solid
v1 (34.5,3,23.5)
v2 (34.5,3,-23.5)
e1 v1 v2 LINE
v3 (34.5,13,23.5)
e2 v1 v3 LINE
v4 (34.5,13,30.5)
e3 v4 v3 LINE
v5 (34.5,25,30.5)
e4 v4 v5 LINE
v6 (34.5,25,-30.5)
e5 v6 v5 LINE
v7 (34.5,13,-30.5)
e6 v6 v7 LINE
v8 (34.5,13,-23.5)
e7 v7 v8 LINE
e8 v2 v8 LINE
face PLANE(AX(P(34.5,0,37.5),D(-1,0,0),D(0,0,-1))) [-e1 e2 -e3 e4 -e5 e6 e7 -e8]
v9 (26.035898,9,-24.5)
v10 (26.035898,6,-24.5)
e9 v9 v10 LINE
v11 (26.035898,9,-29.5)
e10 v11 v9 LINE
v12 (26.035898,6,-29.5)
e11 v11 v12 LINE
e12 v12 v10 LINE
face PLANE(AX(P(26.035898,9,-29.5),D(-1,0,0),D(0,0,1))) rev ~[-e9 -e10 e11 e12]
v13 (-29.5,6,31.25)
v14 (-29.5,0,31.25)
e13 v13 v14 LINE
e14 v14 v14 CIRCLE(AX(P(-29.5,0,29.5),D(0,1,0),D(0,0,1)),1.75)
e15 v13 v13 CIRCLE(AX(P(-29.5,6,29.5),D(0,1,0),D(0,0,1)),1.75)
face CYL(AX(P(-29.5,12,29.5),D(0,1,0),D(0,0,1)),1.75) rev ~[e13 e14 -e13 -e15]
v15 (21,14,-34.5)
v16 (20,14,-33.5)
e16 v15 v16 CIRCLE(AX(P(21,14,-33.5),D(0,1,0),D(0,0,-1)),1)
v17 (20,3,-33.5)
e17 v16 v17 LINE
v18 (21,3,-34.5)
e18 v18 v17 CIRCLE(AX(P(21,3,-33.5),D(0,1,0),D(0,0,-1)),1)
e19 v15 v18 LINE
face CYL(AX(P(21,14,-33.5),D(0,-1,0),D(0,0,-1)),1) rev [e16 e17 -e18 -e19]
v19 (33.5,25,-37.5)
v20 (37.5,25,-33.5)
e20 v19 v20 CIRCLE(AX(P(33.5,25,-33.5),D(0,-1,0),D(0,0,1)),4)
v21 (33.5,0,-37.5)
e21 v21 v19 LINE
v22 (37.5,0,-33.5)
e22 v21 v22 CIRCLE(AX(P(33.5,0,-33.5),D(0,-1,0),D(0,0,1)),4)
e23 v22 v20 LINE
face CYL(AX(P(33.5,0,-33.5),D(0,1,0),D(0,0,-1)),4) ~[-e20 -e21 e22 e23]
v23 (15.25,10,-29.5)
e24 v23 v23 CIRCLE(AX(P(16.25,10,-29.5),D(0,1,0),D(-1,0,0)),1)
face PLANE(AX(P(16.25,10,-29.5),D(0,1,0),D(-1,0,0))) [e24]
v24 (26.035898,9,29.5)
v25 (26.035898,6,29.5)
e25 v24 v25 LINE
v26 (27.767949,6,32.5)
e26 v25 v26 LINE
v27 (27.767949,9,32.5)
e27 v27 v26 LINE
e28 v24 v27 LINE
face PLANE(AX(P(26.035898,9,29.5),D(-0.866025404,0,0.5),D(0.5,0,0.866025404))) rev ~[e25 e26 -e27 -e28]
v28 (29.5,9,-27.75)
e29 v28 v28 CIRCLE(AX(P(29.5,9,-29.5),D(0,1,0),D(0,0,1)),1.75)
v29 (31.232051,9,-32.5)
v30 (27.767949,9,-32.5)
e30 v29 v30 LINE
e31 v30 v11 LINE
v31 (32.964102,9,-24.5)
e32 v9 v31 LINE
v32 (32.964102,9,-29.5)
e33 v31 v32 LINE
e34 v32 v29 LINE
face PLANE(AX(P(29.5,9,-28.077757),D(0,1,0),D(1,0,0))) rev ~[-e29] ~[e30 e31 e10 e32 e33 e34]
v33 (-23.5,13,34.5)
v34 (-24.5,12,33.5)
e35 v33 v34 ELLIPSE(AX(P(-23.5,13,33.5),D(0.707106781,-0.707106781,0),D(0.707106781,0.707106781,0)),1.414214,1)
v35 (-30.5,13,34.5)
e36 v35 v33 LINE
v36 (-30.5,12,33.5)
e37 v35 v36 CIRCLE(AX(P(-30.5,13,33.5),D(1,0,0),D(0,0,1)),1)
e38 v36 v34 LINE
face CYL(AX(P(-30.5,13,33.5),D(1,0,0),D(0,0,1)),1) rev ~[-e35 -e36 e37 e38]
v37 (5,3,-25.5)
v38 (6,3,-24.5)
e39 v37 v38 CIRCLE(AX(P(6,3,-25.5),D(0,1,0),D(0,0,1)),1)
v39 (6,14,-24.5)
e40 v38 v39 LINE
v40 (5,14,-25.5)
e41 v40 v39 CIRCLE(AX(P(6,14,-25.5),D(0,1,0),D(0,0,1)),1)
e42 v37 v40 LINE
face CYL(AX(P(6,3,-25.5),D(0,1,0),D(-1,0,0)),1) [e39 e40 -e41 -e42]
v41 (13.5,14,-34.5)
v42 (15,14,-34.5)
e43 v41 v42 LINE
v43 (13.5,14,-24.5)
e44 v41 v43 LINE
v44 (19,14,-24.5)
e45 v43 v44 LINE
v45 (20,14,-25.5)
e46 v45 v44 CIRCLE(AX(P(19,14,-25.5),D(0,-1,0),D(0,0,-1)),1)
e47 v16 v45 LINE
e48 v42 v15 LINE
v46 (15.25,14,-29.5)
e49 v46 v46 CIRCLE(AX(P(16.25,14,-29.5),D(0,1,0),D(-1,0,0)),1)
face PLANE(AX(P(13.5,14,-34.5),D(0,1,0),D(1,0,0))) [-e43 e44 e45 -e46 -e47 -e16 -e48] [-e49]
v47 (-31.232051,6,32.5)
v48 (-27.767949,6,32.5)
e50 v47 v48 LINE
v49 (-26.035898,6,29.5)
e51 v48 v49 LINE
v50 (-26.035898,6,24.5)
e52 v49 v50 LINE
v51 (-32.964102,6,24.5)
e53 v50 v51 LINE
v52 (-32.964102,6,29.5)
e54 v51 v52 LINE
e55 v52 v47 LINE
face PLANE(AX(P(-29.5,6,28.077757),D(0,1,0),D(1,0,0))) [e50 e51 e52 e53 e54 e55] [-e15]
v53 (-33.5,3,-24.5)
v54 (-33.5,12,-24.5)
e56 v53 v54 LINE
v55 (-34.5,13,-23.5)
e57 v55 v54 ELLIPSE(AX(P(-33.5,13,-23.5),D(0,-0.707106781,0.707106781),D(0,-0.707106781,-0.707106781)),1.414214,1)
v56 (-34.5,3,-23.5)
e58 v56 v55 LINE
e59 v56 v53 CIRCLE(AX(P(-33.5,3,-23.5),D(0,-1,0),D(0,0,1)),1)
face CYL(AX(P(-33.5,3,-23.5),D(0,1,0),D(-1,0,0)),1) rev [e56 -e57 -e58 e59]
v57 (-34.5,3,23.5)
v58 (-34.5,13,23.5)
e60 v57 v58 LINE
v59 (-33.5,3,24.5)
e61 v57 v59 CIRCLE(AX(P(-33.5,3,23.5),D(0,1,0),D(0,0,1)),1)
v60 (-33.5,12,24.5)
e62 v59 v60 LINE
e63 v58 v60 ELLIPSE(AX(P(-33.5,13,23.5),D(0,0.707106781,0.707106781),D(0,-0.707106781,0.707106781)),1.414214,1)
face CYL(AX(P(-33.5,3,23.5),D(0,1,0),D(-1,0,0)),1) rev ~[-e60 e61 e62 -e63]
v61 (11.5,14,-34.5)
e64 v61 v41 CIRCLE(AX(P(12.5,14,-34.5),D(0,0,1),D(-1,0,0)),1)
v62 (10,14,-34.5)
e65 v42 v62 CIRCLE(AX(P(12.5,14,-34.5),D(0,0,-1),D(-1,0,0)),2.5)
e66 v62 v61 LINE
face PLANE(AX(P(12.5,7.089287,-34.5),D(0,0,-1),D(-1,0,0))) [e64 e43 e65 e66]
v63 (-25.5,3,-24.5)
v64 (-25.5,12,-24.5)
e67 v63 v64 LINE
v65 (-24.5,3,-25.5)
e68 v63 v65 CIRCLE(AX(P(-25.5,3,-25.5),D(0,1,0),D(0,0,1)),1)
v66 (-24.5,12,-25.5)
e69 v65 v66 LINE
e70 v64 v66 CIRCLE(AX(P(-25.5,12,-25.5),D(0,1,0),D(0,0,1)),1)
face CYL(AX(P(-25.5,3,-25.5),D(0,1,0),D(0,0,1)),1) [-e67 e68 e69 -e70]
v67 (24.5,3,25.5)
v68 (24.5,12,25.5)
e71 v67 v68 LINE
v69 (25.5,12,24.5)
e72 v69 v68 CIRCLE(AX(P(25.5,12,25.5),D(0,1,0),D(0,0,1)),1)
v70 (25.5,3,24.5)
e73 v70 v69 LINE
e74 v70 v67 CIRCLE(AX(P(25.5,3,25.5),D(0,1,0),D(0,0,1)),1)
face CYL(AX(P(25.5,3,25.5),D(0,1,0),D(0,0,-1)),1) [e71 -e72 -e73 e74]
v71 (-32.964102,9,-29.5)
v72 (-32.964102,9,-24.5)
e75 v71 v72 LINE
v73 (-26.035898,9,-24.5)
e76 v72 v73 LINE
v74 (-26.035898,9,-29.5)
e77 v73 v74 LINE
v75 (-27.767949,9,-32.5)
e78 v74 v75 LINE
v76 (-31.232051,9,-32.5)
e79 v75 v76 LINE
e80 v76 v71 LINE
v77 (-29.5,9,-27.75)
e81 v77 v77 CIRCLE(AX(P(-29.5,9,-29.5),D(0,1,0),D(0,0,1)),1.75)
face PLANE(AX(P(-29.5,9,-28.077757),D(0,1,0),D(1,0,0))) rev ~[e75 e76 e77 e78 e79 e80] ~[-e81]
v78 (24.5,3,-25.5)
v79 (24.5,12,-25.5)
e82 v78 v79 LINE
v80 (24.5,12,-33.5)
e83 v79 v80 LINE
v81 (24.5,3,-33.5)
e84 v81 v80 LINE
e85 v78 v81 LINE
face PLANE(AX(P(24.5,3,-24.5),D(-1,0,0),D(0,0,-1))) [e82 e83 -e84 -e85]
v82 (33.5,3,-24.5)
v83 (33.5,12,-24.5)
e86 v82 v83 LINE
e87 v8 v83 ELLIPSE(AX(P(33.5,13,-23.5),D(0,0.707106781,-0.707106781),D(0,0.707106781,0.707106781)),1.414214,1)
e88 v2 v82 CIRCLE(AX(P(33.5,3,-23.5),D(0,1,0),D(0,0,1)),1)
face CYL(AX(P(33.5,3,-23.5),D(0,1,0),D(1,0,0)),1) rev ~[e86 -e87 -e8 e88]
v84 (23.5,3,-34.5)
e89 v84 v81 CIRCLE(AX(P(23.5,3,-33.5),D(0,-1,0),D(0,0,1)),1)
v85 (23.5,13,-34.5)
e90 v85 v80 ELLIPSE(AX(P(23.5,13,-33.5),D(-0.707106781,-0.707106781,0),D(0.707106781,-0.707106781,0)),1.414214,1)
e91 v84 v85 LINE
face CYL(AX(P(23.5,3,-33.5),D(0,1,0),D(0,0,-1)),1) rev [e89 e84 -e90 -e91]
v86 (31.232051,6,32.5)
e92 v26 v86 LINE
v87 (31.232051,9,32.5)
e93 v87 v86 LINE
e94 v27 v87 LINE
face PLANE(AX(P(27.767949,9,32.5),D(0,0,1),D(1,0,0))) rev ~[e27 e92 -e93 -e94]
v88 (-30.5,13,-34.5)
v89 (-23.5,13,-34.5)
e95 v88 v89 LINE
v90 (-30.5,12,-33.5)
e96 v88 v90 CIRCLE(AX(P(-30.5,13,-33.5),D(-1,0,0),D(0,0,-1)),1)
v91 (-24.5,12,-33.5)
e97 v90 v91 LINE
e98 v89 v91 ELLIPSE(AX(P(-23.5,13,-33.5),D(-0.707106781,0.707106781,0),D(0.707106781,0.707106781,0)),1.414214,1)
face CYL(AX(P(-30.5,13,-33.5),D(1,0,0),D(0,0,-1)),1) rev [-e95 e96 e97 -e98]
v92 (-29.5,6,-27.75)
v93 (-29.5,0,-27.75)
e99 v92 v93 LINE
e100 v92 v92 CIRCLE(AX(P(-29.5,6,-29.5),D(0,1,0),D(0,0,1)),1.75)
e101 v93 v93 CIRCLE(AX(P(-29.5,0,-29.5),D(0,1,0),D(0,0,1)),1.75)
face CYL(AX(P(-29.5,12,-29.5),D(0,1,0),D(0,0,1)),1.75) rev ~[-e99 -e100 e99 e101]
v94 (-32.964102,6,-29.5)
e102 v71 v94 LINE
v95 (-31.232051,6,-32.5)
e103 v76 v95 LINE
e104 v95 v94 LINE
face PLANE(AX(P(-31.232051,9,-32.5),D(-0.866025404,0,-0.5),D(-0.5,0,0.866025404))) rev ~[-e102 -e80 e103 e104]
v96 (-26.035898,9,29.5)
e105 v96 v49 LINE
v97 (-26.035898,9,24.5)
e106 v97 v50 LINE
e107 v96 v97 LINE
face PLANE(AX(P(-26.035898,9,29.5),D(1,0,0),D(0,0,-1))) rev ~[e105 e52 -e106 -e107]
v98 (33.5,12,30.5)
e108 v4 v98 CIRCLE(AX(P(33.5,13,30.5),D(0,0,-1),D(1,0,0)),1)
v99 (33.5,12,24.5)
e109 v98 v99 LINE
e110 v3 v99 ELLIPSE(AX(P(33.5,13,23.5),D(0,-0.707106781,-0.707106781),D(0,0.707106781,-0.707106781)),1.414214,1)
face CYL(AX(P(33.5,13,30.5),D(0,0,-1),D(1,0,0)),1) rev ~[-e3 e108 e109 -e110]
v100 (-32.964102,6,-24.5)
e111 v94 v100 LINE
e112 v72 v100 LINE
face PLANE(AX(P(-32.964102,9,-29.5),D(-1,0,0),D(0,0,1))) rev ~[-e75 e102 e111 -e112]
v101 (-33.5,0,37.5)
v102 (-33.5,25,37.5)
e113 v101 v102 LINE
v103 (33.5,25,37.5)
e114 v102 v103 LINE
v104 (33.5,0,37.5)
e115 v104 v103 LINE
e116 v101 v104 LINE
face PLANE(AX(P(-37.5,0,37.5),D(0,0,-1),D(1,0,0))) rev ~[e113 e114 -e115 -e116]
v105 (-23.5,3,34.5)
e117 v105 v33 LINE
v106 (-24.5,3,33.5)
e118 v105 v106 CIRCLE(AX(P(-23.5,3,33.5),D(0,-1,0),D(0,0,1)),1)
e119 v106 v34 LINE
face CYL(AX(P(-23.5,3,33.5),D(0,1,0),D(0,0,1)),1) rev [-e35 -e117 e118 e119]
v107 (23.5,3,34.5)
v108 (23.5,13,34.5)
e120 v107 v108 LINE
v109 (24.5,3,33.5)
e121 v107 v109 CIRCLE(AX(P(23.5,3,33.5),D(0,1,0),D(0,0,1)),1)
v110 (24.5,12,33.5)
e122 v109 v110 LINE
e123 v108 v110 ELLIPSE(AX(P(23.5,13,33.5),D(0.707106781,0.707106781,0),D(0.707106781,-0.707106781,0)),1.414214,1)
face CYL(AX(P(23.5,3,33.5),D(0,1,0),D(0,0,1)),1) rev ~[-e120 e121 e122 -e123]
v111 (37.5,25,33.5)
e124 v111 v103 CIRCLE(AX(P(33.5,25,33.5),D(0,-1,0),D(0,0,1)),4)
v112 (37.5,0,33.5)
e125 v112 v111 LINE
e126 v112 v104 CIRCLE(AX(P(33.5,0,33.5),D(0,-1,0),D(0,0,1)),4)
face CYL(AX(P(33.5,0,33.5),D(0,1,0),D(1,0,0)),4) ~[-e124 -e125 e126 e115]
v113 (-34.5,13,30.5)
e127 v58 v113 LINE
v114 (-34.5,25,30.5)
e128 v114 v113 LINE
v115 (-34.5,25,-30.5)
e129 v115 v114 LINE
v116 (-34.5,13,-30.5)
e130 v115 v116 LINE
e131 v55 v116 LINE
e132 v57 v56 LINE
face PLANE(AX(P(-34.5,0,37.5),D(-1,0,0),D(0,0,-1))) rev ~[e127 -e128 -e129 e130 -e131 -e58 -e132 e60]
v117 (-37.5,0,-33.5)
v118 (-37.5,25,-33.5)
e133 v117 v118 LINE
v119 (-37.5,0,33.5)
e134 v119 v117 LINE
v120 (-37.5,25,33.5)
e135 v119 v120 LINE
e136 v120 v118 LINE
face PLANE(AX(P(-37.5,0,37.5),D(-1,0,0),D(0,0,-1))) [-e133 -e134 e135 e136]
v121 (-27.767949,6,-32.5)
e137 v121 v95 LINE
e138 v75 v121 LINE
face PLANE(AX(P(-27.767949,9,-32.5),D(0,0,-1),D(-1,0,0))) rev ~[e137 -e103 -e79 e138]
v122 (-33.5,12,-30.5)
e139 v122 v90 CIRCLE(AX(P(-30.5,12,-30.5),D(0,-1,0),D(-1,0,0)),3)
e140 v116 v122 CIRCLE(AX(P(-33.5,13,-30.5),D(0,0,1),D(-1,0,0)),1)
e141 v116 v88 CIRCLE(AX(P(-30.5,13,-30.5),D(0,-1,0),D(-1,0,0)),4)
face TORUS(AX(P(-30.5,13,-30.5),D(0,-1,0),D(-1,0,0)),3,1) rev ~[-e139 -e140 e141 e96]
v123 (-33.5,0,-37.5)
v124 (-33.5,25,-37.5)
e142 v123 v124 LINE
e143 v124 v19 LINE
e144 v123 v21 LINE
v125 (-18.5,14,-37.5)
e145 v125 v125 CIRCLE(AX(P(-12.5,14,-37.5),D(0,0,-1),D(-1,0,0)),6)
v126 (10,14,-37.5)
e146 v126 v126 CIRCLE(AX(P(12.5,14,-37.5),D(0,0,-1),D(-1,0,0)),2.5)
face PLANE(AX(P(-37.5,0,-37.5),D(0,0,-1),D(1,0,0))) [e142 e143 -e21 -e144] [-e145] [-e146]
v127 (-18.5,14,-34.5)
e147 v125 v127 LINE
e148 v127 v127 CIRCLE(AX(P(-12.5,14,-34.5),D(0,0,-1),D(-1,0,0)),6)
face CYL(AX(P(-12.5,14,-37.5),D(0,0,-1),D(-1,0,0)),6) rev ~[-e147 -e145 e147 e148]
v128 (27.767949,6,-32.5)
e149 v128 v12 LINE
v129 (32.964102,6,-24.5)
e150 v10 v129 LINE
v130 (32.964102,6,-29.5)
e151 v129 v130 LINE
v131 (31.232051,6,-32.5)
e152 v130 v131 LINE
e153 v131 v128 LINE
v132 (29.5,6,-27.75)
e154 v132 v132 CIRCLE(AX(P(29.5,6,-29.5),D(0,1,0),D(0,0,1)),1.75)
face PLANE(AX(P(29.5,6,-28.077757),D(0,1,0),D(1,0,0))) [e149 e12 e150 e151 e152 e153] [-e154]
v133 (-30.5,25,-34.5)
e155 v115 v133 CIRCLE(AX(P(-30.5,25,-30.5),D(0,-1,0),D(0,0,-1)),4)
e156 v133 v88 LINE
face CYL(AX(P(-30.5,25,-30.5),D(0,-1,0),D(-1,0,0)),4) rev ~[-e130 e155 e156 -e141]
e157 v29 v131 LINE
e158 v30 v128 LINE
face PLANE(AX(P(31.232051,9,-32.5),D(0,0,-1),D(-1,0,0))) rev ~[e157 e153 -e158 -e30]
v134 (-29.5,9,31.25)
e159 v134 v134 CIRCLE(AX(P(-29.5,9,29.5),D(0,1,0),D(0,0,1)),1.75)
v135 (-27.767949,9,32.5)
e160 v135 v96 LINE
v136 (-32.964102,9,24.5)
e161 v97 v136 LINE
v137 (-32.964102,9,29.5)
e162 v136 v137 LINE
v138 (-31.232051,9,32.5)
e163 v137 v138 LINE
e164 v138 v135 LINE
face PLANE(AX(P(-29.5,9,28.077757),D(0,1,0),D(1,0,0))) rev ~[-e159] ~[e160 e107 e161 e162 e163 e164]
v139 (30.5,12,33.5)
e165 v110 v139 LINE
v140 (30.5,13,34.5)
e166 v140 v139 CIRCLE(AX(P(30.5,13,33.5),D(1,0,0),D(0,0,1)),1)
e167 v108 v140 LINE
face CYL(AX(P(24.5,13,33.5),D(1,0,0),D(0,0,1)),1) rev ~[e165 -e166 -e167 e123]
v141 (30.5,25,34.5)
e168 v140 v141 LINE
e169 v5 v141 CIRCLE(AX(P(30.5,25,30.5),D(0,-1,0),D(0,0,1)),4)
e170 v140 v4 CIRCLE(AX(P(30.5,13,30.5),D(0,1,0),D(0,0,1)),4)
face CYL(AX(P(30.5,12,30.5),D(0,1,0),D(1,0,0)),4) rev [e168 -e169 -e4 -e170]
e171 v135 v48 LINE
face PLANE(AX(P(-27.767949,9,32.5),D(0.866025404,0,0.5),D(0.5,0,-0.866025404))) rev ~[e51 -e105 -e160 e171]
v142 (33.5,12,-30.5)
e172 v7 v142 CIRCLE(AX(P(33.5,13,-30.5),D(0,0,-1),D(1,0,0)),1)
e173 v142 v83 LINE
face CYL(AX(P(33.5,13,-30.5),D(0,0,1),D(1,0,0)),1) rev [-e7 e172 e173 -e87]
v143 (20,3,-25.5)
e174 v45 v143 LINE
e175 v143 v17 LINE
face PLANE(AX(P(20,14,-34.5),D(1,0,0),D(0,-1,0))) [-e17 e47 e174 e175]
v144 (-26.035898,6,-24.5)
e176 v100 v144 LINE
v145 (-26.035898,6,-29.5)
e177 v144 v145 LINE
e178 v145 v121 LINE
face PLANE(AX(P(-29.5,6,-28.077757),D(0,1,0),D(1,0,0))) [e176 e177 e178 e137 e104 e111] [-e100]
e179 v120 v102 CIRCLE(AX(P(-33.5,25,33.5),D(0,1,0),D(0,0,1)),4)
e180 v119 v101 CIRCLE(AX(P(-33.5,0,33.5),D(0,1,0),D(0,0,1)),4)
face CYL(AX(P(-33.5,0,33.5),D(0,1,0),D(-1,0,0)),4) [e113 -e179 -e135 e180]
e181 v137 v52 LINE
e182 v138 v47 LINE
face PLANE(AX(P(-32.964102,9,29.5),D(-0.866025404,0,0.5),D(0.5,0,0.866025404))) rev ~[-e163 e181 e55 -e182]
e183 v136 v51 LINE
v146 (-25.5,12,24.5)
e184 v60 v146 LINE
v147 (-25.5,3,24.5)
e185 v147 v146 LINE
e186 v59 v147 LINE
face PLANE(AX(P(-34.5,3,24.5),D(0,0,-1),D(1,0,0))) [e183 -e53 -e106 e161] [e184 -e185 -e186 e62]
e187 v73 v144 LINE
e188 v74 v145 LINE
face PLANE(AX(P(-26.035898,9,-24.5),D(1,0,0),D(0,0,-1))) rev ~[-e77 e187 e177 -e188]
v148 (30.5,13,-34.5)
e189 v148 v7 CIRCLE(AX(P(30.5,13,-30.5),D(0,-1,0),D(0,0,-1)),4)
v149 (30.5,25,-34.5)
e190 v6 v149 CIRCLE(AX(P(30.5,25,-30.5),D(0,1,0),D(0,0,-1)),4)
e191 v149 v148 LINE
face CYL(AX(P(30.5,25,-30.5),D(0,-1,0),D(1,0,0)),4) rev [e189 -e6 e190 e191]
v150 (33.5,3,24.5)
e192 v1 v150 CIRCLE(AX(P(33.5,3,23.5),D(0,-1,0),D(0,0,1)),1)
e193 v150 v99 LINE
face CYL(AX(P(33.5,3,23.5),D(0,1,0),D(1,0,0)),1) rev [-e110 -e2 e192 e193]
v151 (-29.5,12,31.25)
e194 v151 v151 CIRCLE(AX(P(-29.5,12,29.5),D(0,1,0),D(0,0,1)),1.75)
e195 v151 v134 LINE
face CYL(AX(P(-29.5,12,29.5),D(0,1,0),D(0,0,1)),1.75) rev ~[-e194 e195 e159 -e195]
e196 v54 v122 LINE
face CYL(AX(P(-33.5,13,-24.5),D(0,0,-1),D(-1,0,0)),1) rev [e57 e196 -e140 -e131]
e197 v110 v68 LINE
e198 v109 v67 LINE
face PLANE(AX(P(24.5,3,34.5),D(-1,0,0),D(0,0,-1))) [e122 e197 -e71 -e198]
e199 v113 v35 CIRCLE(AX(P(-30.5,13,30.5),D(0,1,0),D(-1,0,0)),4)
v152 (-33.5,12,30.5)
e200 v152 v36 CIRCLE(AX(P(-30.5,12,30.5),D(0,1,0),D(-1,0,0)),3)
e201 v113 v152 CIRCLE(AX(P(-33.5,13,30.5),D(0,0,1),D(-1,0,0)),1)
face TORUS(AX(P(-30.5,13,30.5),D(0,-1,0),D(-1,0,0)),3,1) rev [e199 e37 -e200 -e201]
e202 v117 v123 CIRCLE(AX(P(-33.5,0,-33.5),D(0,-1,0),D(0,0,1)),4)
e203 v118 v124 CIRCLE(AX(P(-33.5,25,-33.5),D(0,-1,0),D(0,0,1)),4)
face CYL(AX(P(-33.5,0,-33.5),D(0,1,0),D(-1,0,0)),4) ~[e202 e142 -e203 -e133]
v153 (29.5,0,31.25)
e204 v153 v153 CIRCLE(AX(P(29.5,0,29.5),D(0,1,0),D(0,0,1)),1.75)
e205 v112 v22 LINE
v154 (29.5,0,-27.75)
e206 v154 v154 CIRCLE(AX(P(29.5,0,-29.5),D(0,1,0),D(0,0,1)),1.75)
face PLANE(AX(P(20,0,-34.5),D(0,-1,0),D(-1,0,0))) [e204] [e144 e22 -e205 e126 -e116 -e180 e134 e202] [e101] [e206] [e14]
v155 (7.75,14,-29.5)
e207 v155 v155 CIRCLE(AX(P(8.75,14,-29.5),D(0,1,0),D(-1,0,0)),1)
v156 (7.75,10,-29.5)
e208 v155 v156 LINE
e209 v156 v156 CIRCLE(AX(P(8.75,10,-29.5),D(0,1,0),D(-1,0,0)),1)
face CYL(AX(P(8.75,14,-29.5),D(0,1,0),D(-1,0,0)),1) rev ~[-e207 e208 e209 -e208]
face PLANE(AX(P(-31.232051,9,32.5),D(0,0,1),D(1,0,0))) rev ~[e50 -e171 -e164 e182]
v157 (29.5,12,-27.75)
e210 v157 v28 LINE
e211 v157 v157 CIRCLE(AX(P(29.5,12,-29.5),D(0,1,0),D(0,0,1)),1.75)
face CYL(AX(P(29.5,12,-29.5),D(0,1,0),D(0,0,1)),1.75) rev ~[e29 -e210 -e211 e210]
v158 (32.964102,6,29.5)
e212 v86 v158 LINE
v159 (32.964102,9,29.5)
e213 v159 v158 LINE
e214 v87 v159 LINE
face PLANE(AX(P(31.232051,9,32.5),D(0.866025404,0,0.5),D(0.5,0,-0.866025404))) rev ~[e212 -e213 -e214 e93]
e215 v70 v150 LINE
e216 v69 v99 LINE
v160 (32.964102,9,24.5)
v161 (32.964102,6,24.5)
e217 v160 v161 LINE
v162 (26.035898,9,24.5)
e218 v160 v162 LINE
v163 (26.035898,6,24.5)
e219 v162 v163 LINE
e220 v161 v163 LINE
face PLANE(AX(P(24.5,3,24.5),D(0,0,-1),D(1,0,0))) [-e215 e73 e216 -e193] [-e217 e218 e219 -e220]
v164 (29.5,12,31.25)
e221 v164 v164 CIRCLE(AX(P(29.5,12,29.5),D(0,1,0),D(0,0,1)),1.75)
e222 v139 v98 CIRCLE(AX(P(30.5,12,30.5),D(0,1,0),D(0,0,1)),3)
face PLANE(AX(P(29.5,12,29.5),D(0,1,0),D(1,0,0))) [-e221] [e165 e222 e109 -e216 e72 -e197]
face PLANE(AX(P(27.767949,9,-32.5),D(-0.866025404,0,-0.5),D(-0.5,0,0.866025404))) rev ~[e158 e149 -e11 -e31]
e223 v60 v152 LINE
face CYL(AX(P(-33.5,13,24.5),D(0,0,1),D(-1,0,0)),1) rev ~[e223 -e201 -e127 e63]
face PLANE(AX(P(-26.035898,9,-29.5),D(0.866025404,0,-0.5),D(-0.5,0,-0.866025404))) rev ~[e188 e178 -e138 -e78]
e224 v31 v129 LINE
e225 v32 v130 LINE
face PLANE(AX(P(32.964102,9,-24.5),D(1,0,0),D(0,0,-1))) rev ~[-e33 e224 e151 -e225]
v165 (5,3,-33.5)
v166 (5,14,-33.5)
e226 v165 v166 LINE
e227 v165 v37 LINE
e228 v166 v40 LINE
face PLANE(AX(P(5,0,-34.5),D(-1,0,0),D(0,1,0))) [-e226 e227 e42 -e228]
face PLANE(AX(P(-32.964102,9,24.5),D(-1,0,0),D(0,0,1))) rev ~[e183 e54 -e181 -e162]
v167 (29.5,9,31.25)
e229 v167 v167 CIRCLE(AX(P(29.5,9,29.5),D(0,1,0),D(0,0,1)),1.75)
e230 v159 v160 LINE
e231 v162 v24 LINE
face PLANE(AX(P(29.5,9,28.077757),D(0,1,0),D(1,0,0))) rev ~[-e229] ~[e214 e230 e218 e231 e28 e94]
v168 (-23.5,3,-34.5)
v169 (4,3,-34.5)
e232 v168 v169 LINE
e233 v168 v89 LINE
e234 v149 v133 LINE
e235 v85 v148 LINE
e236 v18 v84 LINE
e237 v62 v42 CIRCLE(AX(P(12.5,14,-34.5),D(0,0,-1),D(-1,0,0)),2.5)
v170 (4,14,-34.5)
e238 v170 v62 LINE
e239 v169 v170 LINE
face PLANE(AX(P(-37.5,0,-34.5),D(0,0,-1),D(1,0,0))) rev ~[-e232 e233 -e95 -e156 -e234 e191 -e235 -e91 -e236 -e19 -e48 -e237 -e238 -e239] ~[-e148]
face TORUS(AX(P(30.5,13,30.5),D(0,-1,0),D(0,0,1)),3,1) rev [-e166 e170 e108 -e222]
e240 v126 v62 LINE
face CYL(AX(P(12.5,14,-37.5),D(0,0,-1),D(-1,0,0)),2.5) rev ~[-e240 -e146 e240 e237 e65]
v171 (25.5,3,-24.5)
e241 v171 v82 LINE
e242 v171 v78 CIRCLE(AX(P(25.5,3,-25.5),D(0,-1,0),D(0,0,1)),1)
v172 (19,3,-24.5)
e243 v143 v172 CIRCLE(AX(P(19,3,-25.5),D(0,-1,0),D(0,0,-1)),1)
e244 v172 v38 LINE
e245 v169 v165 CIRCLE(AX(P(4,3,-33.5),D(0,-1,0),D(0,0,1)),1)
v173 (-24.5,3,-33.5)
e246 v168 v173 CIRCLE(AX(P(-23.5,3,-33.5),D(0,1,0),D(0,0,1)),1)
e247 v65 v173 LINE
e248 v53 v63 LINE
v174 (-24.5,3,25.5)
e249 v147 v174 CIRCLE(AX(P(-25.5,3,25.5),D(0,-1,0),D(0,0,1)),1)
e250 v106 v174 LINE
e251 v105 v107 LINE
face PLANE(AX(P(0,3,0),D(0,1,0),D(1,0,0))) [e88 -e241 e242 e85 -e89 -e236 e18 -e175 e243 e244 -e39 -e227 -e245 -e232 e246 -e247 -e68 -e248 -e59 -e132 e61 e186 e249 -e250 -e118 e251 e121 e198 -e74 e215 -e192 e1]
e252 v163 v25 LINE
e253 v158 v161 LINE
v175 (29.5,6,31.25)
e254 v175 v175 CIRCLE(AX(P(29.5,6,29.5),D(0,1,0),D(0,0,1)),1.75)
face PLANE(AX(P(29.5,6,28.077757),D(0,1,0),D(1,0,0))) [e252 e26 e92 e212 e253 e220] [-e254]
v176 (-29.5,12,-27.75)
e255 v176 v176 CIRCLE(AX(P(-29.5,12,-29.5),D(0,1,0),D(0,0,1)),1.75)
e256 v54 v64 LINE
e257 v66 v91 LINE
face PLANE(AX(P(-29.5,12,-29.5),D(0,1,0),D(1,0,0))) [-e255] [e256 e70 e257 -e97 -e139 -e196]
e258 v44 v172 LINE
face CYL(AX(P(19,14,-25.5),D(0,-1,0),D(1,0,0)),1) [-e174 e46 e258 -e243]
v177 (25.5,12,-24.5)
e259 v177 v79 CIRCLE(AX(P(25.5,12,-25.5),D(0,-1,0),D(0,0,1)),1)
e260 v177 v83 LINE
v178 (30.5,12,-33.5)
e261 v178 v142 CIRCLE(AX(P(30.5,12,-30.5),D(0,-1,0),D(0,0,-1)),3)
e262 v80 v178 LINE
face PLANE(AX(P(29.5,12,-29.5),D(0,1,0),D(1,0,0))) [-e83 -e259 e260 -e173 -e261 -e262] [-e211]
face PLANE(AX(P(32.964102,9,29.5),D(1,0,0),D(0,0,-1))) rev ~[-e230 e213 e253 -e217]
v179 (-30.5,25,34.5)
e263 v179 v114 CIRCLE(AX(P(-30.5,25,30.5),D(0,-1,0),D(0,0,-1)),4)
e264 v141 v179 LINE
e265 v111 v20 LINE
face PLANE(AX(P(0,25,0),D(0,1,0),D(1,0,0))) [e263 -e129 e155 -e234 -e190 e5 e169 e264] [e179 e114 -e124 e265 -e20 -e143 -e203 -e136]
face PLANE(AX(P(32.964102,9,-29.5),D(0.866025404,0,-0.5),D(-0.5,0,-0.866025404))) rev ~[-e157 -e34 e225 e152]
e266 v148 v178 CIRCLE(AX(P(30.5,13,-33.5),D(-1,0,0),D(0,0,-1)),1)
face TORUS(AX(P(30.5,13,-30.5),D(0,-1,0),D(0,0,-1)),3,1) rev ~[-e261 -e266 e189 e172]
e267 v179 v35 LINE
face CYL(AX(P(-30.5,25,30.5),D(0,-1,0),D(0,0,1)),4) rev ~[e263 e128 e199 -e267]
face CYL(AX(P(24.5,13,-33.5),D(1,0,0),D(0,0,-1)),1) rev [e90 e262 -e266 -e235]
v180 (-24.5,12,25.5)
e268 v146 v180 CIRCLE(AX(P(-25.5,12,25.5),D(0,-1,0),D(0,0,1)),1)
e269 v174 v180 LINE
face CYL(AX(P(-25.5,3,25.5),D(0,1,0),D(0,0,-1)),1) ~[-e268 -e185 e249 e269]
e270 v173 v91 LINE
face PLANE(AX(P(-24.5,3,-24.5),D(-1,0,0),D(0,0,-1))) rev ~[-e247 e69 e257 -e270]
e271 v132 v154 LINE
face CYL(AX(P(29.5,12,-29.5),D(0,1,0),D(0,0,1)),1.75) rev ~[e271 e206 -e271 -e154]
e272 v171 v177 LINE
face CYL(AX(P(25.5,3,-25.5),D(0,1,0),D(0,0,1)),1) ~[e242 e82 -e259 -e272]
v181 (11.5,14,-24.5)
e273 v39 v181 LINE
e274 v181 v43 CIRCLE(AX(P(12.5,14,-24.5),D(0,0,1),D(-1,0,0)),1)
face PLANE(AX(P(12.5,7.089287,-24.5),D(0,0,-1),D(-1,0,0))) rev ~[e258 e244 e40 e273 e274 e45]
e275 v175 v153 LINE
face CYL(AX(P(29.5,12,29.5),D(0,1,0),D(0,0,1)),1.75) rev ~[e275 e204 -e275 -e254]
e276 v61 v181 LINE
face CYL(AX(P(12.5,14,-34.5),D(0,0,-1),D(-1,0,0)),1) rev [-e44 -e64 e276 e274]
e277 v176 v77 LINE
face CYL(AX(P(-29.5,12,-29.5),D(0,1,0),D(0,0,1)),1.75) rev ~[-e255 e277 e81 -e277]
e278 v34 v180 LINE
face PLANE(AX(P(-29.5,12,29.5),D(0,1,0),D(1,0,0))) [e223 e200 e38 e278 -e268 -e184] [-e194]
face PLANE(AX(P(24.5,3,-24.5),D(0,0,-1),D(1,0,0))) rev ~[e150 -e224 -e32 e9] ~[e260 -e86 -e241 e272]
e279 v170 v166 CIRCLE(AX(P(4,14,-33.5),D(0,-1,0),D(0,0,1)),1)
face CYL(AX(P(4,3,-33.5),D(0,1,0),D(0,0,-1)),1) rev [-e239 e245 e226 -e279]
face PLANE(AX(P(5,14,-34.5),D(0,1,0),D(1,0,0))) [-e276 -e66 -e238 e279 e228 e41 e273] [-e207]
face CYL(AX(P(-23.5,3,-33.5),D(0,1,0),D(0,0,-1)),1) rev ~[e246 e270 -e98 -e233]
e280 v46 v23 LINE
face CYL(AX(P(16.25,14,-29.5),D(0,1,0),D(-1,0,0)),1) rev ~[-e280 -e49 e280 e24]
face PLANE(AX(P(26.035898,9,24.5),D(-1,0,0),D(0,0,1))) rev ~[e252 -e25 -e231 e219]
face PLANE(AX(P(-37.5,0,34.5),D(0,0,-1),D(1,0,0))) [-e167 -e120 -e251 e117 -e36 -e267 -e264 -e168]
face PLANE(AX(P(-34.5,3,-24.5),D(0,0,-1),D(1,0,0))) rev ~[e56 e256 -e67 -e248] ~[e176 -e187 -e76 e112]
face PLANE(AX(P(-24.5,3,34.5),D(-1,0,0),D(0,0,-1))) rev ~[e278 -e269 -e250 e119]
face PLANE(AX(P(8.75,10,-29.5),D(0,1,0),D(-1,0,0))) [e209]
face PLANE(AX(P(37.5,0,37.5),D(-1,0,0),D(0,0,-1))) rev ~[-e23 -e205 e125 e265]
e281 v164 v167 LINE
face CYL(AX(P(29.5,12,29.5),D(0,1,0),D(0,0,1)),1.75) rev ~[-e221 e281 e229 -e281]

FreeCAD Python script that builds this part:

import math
import FreeCAD as App
import Part
import Sketcher
from FreeCAD import Vector
Q = App.Units.Quantity


def edges_at(feature, points):
    """Names of the edges that pass closest to the given points."""
    edges = feature.Shape.Edges
    near = lambda p: min(range(len(edges)), key=lambda i: edges[i].distToShape(Part.Vertex(*p))[0])
    return sorted({f"Edge{near(p) + 1}" for p in points})


def faces_at(feature, points):
    """Names of the faces that lie closest to the given points."""
    faces = feature.Shape.Faces
    near = lambda p: min(range(len(faces)), key=lambda i: faces[i].distToShape(Part.Vertex(*p))[0])
    return sorted({f"Face{near(p) + 1}" for p in points})

doc = App.newDocument("Part")
params = doc.addObject("Spreadsheet::Sheet", "Params")
for row, (alias, value) in enumerate([
    ("sketch1_width", "75 mm"),
    ("pad1_length", "25 mm"),
    ("thickness_wall", "3 mm"),
    ("sketch2_width", "10 mm"),
    ("pad2_length", "9 mm"),
    ("sketch3_diameter", "3.5 mm"),
    ("sketch4_diameter", "3.5 mm"),
    ("sketch5_diameter", "3.5 mm"),
    ("sketch6_diameter", "3.5 mm"),
    ("sketch7_height", "5 mm"),
    ("pocket5_length", "3 mm"),
    ("sketch8_diameter", "12 mm"),
    ("sketch9_diameter", "5 mm"),
    ("sketch10_radius", "1 mm"),
    ("sketch10_width", "15 mm"),
    ("sketch10_height", "14 mm"),
    ("pad3_length", "10 mm"),
    ("sketch11_diameter", "2 mm"),
    ("pocket8_length", "4 mm"),
    ("fillet_radius", "4 mm"),
    ("fillet2_radius", "1 mm"),
], start=1):
    params.set(f"A{row}", alias)
    params.set(f"B{row}", "=" + value)
    params.setAlias(f"B{row}", alias)

body = doc.addObject("PartDesign::Body", "Body")

# Sketch on XZ plane
sketch1 = body.newObject("Sketcher::SketchObject", "Sketch")
sketch1.AttachmentSupport = (doc.getObject("XZ_Plane"), [""])
sketch1.MapMode = "FlatFace"
sketch1.addGeometry([
    Part.LineSegment(Vector(-38, -38, 0), Vector(-38, 38, 0)),
    Part.LineSegment(Vector(-38, 38, 0), Vector(38, 38, 0)),
    Part.LineSegment(Vector(38, 38, 0), Vector(38, -38, 0)),
    Part.LineSegment(Vector(38, -38, 0), Vector(-38, -38, 0)),
], False)
sketch1.addConstraint([
    Sketcher.Constraint("Coincident", 0, 2, 1, 1),
    Sketcher.Constraint("Coincident", 1, 2, 2, 1),
    Sketcher.Constraint("Coincident", 2, 2, 3, 1),
    Sketcher.Constraint("Coincident", 3, 2, 0, 1),
    Sketcher.Constraint("Vertical", 0),
    Sketcher.Constraint("Horizontal", 1),
    Sketcher.Constraint("Vertical", 2),
    Sketcher.Constraint("Horizontal", 3),
    Sketcher.Constraint("Symmetric", 0, 2, 2, 2, -1, 1),
    Sketcher.Constraint("Equal", 3, 0),
    Sketcher.Constraint("DistanceX", 1, 1, 1, 2, Q("75 mm")),
])
sketch1.setExpression("Constraints[10]", "Params.sketch1_width")
pad1 = body.newObject("PartDesign::Pad", "Pad")
pad1.Profile = sketch1
pad1.setExpression("Length", "Params.pad1_length")
pad1.Reversed = True
doc.recompute()

thickness = body.newObject("PartDesign::Thickness", "Thickness")
thickness.Base = (pad1, faces_at(pad1, [(0, 25, 0)]))
thickness.setExpression("Value", "Params.thickness_wall")
thickness.Reversed = True
thickness.Join = "Intersection"

# Sketch on XZ plane
sketch2 = body.newObject("Sketcher::SketchObject", "Sketch001")
sketch2.AttachmentSupport = (doc.getObject("XZ_Plane"), [""])
sketch2.MapMode = "FlatFace"
sketch2.AttachmentOffset = App.Placement(Vector(0, 0, -3), App.Rotation())
sketch2.addGeometry([
    Part.LineSegment(Vector(-34, 24, 0), Vector(-34, 34, 0)),  # 0
    Part.LineSegment(Vector(-34, 34, 0), Vector(-24, 34, 0)),  # 1
    Part.LineSegment(Vector(-24, 34, 0), Vector(-24, 24, 0)),  # 2
    Part.LineSegment(Vector(-24, 24, 0), Vector(-34, 24, 0)),  # 3
    Part.LineSegment(Vector(24, 24, 0), Vector(24, 34, 0)),  # 4
    Part.LineSegment(Vector(24, 34, 0), Vector(34, 34, 0)),  # 5
    Part.LineSegment(Vector(34, 34, 0), Vector(34, 24, 0)),  # 6
    Part.LineSegment(Vector(34, 24, 0), Vector(24, 24, 0)),  # 7
    Part.LineSegment(Vector(24, -34, 0), Vector(24, -24, 0)),  # 8
    Part.LineSegment(Vector(24, -24, 0), Vector(34, -24, 0)),  # 9
    Part.LineSegment(Vector(34, -24, 0), Vector(34, -34, 0)),  # 10
    Part.LineSegment(Vector(34, -34, 0), Vector(24, -34, 0)),  # 11
    Part.LineSegment(Vector(-34, -34, 0), Vector(-34, -24, 0)),  # 12
    Part.LineSegment(Vector(-34, -24, 0), Vector(-24, -24, 0)),  # 13
    Part.LineSegment(Vector(-24, -24, 0), Vector(-24, -34, 0)),  # 14
    Part.LineSegment(Vector(-24, -34, 0), Vector(-34, -34, 0)),  # 15
], False)
sketch2.addConstraint([
    Sketcher.Constraint("Coincident", 0, 2, 1, 1),
    Sketcher.Constraint("Coincident", 1, 2, 2, 1),
    Sketcher.Constraint("Coincident", 2, 2, 3, 1),
    Sketcher.Constraint("Coincident", 3, 2, 0, 1),
    Sketcher.Constraint("Coincident", 4, 2, 5, 1),
    Sketcher.Constraint("Coincident", 5, 2, 6, 1),
    Sketcher.Constraint("Coincident", 6, 2, 7, 1),
    Sketcher.Constraint("Coincident", 7, 2, 4, 1),
    Sketcher.Constraint("Coincident", 8, 2, 9, 1),
    Sketcher.Constraint("Coincident", 9, 2, 10, 1),
    Sketcher.Constraint("Coincident", 10, 2, 11, 1),
    Sketcher.Constraint("Coincident", 11, 2, 8, 1),
    Sketcher.Constraint("Coincident", 12, 2, 13, 1),
    Sketcher.Constraint("Coincident", 13, 2, 14, 1),
    Sketcher.Constraint("Coincident", 14, 2, 15, 1),
    Sketcher.Constraint("Coincident", 15, 2, 12, 1),
    Sketcher.Constraint("Vertical", 0),
    Sketcher.Constraint("Horizontal", 1),
    Sketcher.Constraint("Vertical", 2),
    Sketcher.Constraint("Horizontal", 3),
    Sketcher.Constraint("Vertical", 4),
    Sketcher.Constraint("Horizontal", 5),
    Sketcher.Constraint("Vertical", 6),
    Sketcher.Constraint("Horizontal", 7),
    Sketcher.Constraint("Vertical", 8),
    Sketcher.Constraint("Horizontal", 9),
    Sketcher.Constraint("Vertical", 10),
    Sketcher.Constraint("Horizontal", 11),
    Sketcher.Constraint("Vertical", 12),
    Sketcher.Constraint("Horizontal", 13),
    Sketcher.Constraint("Vertical", 14),
    Sketcher.Constraint("Horizontal", 15),
    Sketcher.Constraint("Symmetric", 2, 2, 8, 2, -1, 1),
    Sketcher.Constraint("Symmetric", 0, 2, 10, 2, -1, 1),
    Sketcher.Constraint("Symmetric", 6, 2, 12, 2, -1, 1),
    Sketcher.Constraint("Symmetric", 4, 2, 14, 2, -1, 1),
    Sketcher.Constraint("Symmetric", 1, 2, 4, 2, -2),
    Sketcher.Constraint("Symmetric", 3, 2, 6, 2, -2),
    Sketcher.Constraint("Equal", 15, 0),
    Sketcher.Constraint("DistanceX", 1, 1, 1, 2, Q("10 mm")),
    Sketcher.Constraint("DistanceX", 1, 2, 4, 2, Q("49 mm")),
    Sketcher.Constraint("DistanceY", 8, 2, 7, 2, Q("49 mm")),
])
sketch2.setExpression("Constraints[39]", "Params.sketch2_width")
pad2 = body.newObject("PartDesign::Pad", "Pad001")
pad2.Profile = sketch2
pad2.setExpression("Length", "Params.pad2_length")
pad2.Reversed = True

# Sketch on XZ plane
sketch3 = body.newObject("Sketcher::SketchObject", "Sketch002")
sketch3.AttachmentSupport = (doc.getObject("XZ_Plane"), [""])
sketch3.MapMode = "FlatFace"
sketch3.AttachmentOffset = App.Placement(Vector(0, 0, -12), App.Rotation())
sketch3.addGeometry(Part.Circle(Vector(-29.5, -29.5, 0), Vector(0, 0, 1), 1.8), False)
sketch3.addConstraint([
    Sketcher.Constraint("Diameter", 0, Q("3.5 mm")),
    Sketcher.Constraint("DistanceX", 0, 3, -1, 1, Q("29.5 mm")),
    Sketcher.Constraint("DistanceY", 0, 3, -1, 1, Q("29.5 mm")),
])
sketch3.setExpression("Constraints[0]", "Params.sketch3_diameter")
pocket1 = body.newObject("PartDesign::Pocket", "Pocket")
pocket1.Profile = sketch3
pocket1.Type = "UpToFirst"
pocket1.Reversed = True

# Sketch on XZ plane
sketch4 = body.newObject("Sketcher::SketchObject", "Sketch003")
sketch4.AttachmentSupport = (doc.getObject("XZ_Plane"), [""])
sketch4.MapMode = "FlatFace"
sketch4.AttachmentOffset = App.Placement(Vector(0, 0, -12), App.Rotation())
sketch4.addGeometry(Part.Circle(Vector(29.5, -29.5, 0), Vector(0, 0, 1), 1.8), False)
sketch4.addConstraint([
    Sketcher.Constraint("Diameter", 0, Q("3.5 mm")),
    Sketcher.Constraint("DistanceX", -1, 1, 0, 3, Q("29.5 mm")),
    Sketcher.Constraint("DistanceY", 0, 3, -1, 1, Q("29.5 mm")),
])
sketch4.setExpression("Constraints[0]", "Params.sketch4_diameter")
pocket2 = body.newObject("PartDesign::Pocket", "Pocket001")
pocket2.Profile = sketch4
pocket2.Type = "UpToFirst"
pocket2.Reversed = True

# Sketch on XZ plane
sketch5 = body.newObject("Sketcher::SketchObject", "Sketch004")
sketch5.AttachmentSupport = (doc.getObject("XZ_Plane"), [""])
sketch5.MapMode = "FlatFace"
sketch5.AttachmentOffset = App.Placement(Vector(0, 0, -12), App.Rotation())
sketch5.addGeometry(Part.Circle(Vector(29.5, 29.5, 0), Vector(0, 0, 1), 1.8), False)
sketch5.addConstraint([
    Sketcher.Constraint("Diameter", 0, Q("3.5 mm")),
    Sketcher.Constraint("DistanceX", -1, 1, 0, 3, Q("29.5 mm")),
    Sketcher.Constraint("DistanceY", -1, 1, 0, 3, Q("29.5 mm")),
])
sketch5.setExpression("Constraints[0]", "Params.sketch5_diameter")
pocket3 = body.newObject("PartDesign::Pocket", "Pocket002")
pocket3.Profile = sketch5
pocket3.Type = "UpToFirst"
pocket3.Reversed = True

# Sketch on XZ plane
sketch6 = body.newObject("Sketcher::SketchObject", "Sketch005")
sketch6.AttachmentSupport = (doc.getObject("XZ_Plane"), [""])
sketch6.MapMode = "FlatFace"
sketch6.AttachmentOffset = App.Placement(Vector(0, 0, -12), App.Rotation())
sketch6.addGeometry(Part.Circle(Vector(-29.5, 29.5, 0), Vector(0, 0, 1), 1.8), False)
sketch6.addConstraint([
    Sketcher.Constraint("Diameter", 0, Q("3.5 mm")),
    Sketcher.Constraint("DistanceX", 0, 3, -1, 1, Q("29.5 mm")),
    Sketcher.Constraint("DistanceY", -1, 1, 0, 3, Q("29.5 mm")),
])
sketch6.setExpression("Constraints[0]", "Params.sketch6_diameter")
pocket4 = body.newObject("PartDesign::Pocket", "Pocket003")
pocket4.Profile = sketch6
pocket4.Type = "UpToFirst"
pocket4.Reversed = True

# Sketch on XZ plane
sketch7 = body.newObject("Sketcher::SketchObject", "Sketch006")
sketch7.AttachmentSupport = (doc.getObject("XZ_Plane"), [""])
sketch7.MapMode = "FlatFace"
sketch7.AttachmentOffset = App.Placement(Vector(0, 0, -9), App.Rotation())
sketch7.addGeometry([
    Part.LineSegment(Vector(-26, -29.5, 0), Vector(-27.8, -32.5, 0)),  # 0
    Part.LineSegment(Vector(-27.8, -32.5, 0), Vector(-31.2, -32.5, 0)),  # 1
    Part.LineSegment(Vector(-31.2, -32.5, 0), Vector(-33, -29.5, 0)),  # 2
    Part.LineSegment(Vector(-33, -29.5, 0), Vector(-33, -24.5, 0)),  # 3
    Part.LineSegment(Vector(-33, -24.5, 0), Vector(-26, -24.5, 0)),  # 4
    Part.LineSegment(Vector(-26, -24.5, 0), Vector(-26, -29.5, 0)),  # 5
    Part.LineSegment(Vector(33, -29.5, 0), Vector(31.2, -32.5, 0)),  # 6
    Part.LineSegment(Vector(31.2, -32.5, 0), Vector(27.8, -32.5, 0)),  # 7
    Part.LineSegment(Vector(27.8, -32.5, 0), Vector(26, -29.5, 0)),  # 8
    Part.LineSegment(Vector(26, -29.5, 0), Vector(26, -24.5, 0)),  # 9
    Part.LineSegment(Vector(26, -24.5, 0), Vector(33, -24.5, 0)),  # 10
    Part.LineSegment(Vector(33, -24.5, 0), Vector(33, -29.5, 0)),  # 11
    Part.LineSegment(Vector(26, 29.5, 0), Vector(27.8, 32.5, 0)),  # 12
    Part.LineSegment(Vector(27.8, 32.5, 0), Vector(31.2, 32.5, 0)),  # 13
    Part.LineSegment(Vector(31.2, 32.5, 0), Vector(33, 29.5, 0)),  # 14
    Part.LineSegment(Vector(33, 29.5, 0), Vector(33, 24.5, 0)),  # 15
    Part.LineSegment(Vector(33, 24.5, 0), Vector(26, 24.5, 0)),  # 16
    Part.LineSegment(Vector(26, 24.5, 0), Vector(26, 29.5, 0)),  # 17
    Part.LineSegment(Vector(-33, 29.5, 0), Vector(-31.2, 32.5, 0)),  # 18
    Part.LineSegment(Vector(-31.2, 32.5, 0), Vector(-27.8, 32.5, 0)),  # 19
    Part.LineSegment(Vector(-27.8, 32.5, 0), Vector(-26, 29.5, 0)),  # 20
    Part.LineSegment(Vector(-26, 29.5, 0), Vector(-26, 24.5, 0)),  # 21
    Part.LineSegment(Vector(-26, 24.5, 0), Vector(-33, 24.5, 0)),  # 22
    Part.LineSegment(Vector(-33, 24.5, 0), Vector(-33, 29.5, 0)),  # 23
], False)
sketch7.addConstraint([
    Sketcher.Constraint("Coincident", 0, 2, 1, 1),
    Sketcher.Constraint("Coincident", 1, 2, 2, 1),
    Sketcher.Constraint("Coincident", 2, 2, 3, 1),
    Sketcher.Constraint("Coincident", 3, 2, 4, 1),
    Sketcher.Constraint("Coincident", 4, 2, 5, 1),
    Sketcher.Constraint("Coincident", 5, 2, 0, 1),
    Sketcher.Constraint("Coincident", 6, 2, 7, 1),
    Sketcher.Constraint("Coincident", 7, 2, 8, 1),
    Sketcher.Constraint("Coincident", 8, 2, 9, 1),
    Sketcher.Constraint("Coincident", 9, 2, 10, 1),
    Sketcher.Constraint("Coincident", 10, 2, 11, 1),
    Sketcher.Constraint("Coincident", 11, 2, 6, 1),
    Sketcher.Constraint("Coincident", 12, 2, 13, 1),
    Sketcher.Constraint("Coincident", 13, 2, 14, 1),
    Sketcher.Constraint("Coincident", 14, 2, 15, 1),
    Sketcher.Constraint("Coincident", 15, 2, 16, 1),
    Sketcher.Constraint("Coincident", 16, 2, 17, 1),
    Sketcher.Constraint("Coincident", 17, 2, 12, 1),
    Sketcher.Constraint("Coincident", 18, 2, 19, 1),
    Sketcher.Constraint("Coincident", 19, 2, 20, 1),
    Sketcher.Constraint("Coincident", 20, 2, 21, 1),
    Sketcher.Constraint("Coincident", 21, 2, 22, 1),
    Sketcher.Constraint("Coincident", 22, 2, 23, 1),
    Sketcher.Constraint("Coincident", 23, 2, 18, 1),
    Sketcher.Constraint("Horizontal", 1),
    Sketcher.Constraint("Vertical", 3),
    Sketcher.Constraint("Horizontal", 4),
    Sketcher.Constraint("Vertical", 5),
    Sketcher.Constraint("Horizontal", 7),
    Sketcher.Constraint("Vertical", 9),
    Sketcher.Constraint("Horizontal", 10),
    Sketcher.Constraint("Vertical", 11),
    Sketcher.Constraint("Horizontal", 13),
    Sketcher.Constraint("Vertical", 15),
    Sketcher.Constraint("Horizontal", 16),
    Sketcher.Constraint("Vertical", 17),
    Sketcher.Constraint("Horizontal", 19),
    Sketcher.Constraint("Vertical", 21),
    Sketcher.Constraint("Horizontal", 22),
    Sketcher.Constraint("Vertical", 23),
    Sketcher.Constraint("Symmetric", 0, 2, 12, 2, -1, 1),
    Sketcher.Constraint("Symmetric", 2, 2, 14, 2, -1, 1),
    Sketcher.Constraint("Symmetric", 4, 2, 16, 2, -1, 1),
    Sketcher.Constraint("Symmetric", 6, 2, 18, 2, -1, 1),
    Sketcher.Constraint("Symmetric", 8, 2, 20, 2, -1, 1),
    Sketcher.Constraint("Symmetric", 10, 2, 22, 2, -1, 1),
    Sketcher.Constraint("Symmetric", 1, 2, 6, 2, -2),
    Sketcher.Constraint("Symmetric", 5, 2, 8, 2, -2),
    Sketcher.Constraint("Symmetric", 3, 2, 10, 2, -2),
    Sketcher.Constraint("Parallel", 0, 6),
    Sketcher.Constraint("Parallel", 2, 8),
    Sketcher.Constraint("Parallel", 6, 12),
    Sketcher.Constraint("Parallel", 8, 14),
    Sketcher.Constraint("Parallel", 12, 18),
    Sketcher.Constraint("Parallel", 14, 20),
    Sketcher.Constraint("Horizontal", 2, 2, 5, 2),
    Sketcher.Constraint("Horizontal", 8, 2, 11, 2),
    Sketcher.Constraint("DistanceY", 3, 1, 3, 2, Q("5 mm")),
    Sketcher.Constraint("Angle", 0, Q("-120 deg")),
    Sketcher.Constraint("DistanceY", 1, 2, 2, 2, Q("3 mm")),
    Sketcher.Constraint("DistanceX", 0, 2, 6, 2, Q("59 mm")),
    Sketcher.Constraint("DistanceY", 9, 2, 12, 2, Q("57 mm")),
    Sketcher.Constraint("DistanceX", 1, 2, 1, 1, Q("3.464102 mm")),
])
sketch7.setExpression("Constraints[57]", "Params.sketch7_height")
pocket5 = body.newObject("PartDesign::Pocket", "Pocket004")
pocket5.Profile = sketch7
pocket5.setExpression("Length", "Params.pocket5_length")
pocket5.Reversed = True

# Sketch on XY plane
sketch8 = body.newObject("Sketcher::SketchObject", "Sketch007")
sketch8.AttachmentSupport = (doc.getObject("XY_Plane"), [""])
sketch8.MapMode = "FlatFace"
sketch8.AttachmentOffset = App.Placement(Vector(0, 0, -37.5), App.Rotation())
sketch8.addGeometry(Part.Circle(Vector(-12, 14, 0), Vector(0, 0, 1), 6), False)
sketch8.addConstraint([
    Sketcher.Constraint("Diameter", 0, Q("12 mm")),
    Sketcher.Constraint("DistanceY", -1, 1, 0, 3, Q("14 mm")),
    Sketcher.Constraint("DistanceX", 0, 3, -1, 1, Q("12.5 mm")),
])
sketch8.setExpression("Constraints[0]", "Params.sketch8_diameter")
pocket6 = body.newObject("PartDesign::Pocket", "Pocket005")
pocket6.Profile = sketch8
pocket6.Type = "UpToFirst"
pocket6.Reversed = True

# Sketch on XY plane
sketch9 = body.newObject("Sketcher::SketchObject", "Sketch008")
sketch9.AttachmentSupport = (doc.getObject("XY_Plane"), [""])
sketch9.MapMode = "FlatFace"
sketch9.AttachmentOffset = App.Placement(Vector(0, 0, -37.5), App.Rotation())
sketch9.addGeometry(Part.Circle(Vector(12.5, 14, 0), Vector(0, 0, 1), 2.5), False)
sketch9.addConstraint([
    Sketcher.Constraint("Diameter", 0, Q("5 mm")),
    Sketcher.Constraint("DistanceY", -1, 1, 0, 3, Q("14 mm")),
    Sketcher.Constraint("DistanceX", -1, 1, 0, 3, Q("12.5 mm")),
])
sketch9.setExpression("Constraints[0]", "Params.sketch9_diameter")
pocket7 = body.newObject("PartDesign::Pocket", "Pocket006")
pocket7.Profile = sketch9
pocket7.Type = "UpToFirst"
pocket7.Reversed = True

# Sketch on XY plane
sketch10 = body.newObject("Sketcher::SketchObject", "Sketch009")
sketch10.AttachmentSupport = (doc.getObject("XY_Plane"), [""])
sketch10.MapMode = "FlatFace"
sketch10.AttachmentOffset = App.Placement(Vector(0, 0, -34.5), App.Rotation())
sketch10.addGeometry([
    Part.LineSegment(Vector(5, 0, 0), Vector(20, 0, 0)),  # 0
    Part.LineSegment(Vector(20, 0, 0), Vector(20, 14, 0)),  # 1
    Part.LineSegment(Vector(20, 14, 0), Vector(13.5, 14, 0)),  # 2
    Part.ArcOfCircle(Part.Circle(Vector(12.5, 14, 0), Vector(0, 0, 1), 1), math.radians(180), math.radians(360)),  # 3
    Part.LineSegment(Vector(11.5, 14, 0), Vector(5, 14, 0)),  # 4
    Part.LineSegment(Vector(5, 14, 0), Vector(5, 0, 0)),  # 5
], False)
sketch10.addConstraint([
    Sketcher.Constraint("Coincident", 0, 2, 1, 1),
    Sketcher.Constraint("Coincident", 1, 2, 2, 1),
    Sketcher.Constraint("Coincident", 2, 2, 3, 2),
    Sketcher.Constraint("Coincident", 3, 1, 4, 1),
    Sketcher.Constraint("Coincident", 4, 2, 5, 1),
    Sketcher.Constraint("Coincident", 5, 2, 0, 1),
    Sketcher.Constraint("Horizontal", 0),
    Sketcher.Constraint("Vertical", 1),
    Sketcher.Constraint("Horizontal", 2),
    Sketcher.Constraint("Horizontal", 4),
    Sketcher.Constraint("Vertical", 5),
    Sketcher.Constraint("PointOnObject", 0, 2, -1),
    Sketcher.Constraint("Horizontal", 3, 3, 1, 2),
    Sketcher.Constraint("Horizontal", 2, 2, 3, 1),
    Sketcher.Constraint("Equal", 2, 4),
    Sketcher.Constraint("Radius", 3, Q("1 mm")),
    Sketcher.Constraint("DistanceX", 0, 1, 0, 2, Q("15 mm")),
    Sketcher.Constraint("DistanceY", 1, 1, 1, 2, Q("14 mm")),
    Sketcher.Constraint("DistanceX", -1, 1, 0, 2, Q("20 mm")),
])
sketch10.setExpression("Constraints[15]", "Params.sketch10_radius")
sketch10.setExpression("Constraints[16]", "Params.sketch10_width")
sketch10.setExpression("Constraints[17]", "Params.sketch10_height")
pad3 = body.newObject("PartDesign::Pad", "Pad002")
pad3.Profile = sketch10
pad3.setExpression("Length", "Params.pad3_length")

# Sketch on XZ plane
sketch11 = body.newObject("Sketcher::SketchObject", "Sketch010")
sketch11.AttachmentSupport = (doc.getObject("XZ_Plane"), [""])
sketch11.MapMode = "FlatFace"
sketch11.AttachmentOffset = App.Placement(Vector(0, 0, -14), App.Rotation())
sketch11.addGeometry([
    Part.Circle(Vector(16.2, -29.5, 0), Vector(0, 0, 1), 1),
    Part.Circle(Vector(8.8, -29.5, 0), Vector(0, 0, 1), 1),
], False)
sketch11.addConstraint([
    Sketcher.Constraint("Equal", 0, 1),
    Sketcher.Constraint("Horizontal", 0, 3, 1, 3),
    Sketcher.Constraint("Diameter", 0, Q("2 mm")),
    Sketcher.Constraint("DistanceY", 0, 3, -1, 1, Q("29.5 mm")),
    Sketcher.Constraint("DistanceX", 1, 3, 0, 3, Q("7.5 mm")),
    Sketcher.Constraint("DistanceX", -1, 1, 0, 3, Q("16.25 mm")),
])
sketch11.setExpression("Constraints[2]", "Params.sketch11_diameter")
pocket8 = body.newObject("PartDesign::Pocket", "Pocket007")
pocket8.Profile = sketch11
pocket8.setExpression("Length", "Params.pocket8_length")
pocket8.Reversed = True
doc.recompute()

fillet = body.newObject("PartDesign::Fillet", "Fillet")
fillet.Base = (pocket8, edges_at(pocket8, [
    (34.5, 18.5, 34.5),
    (34.5, 18.5, -34.5),
    (-34.5, 18.5, -34.5),
    (-34.5, 18.5, 34.5),
    (37.5, 12.5, 37.5),
    (-37.5, 12.5, 37.5),
    (-37.5, 12.5, -37.5),
    (37.5, 12.5, -37.5),
]))
fillet.setExpression("Radius", "Params.fillet_radius")
doc.recompute()

fillet2 = body.newObject("PartDesign::Fillet", "Fillet001")
fillet2.Base = (fillet, edges_at(fillet, [
    (20, 8.5, -34.5),
    (5, 8.5, -34.5),
    (5, 8.5, -24.5),
    (20, 8.5, -24.5),
    (-34.5, 12, -27.5),
    (-27.5, 12, 34.5),
    (-33.328, 12, 33.328),
    (27.5, 12, -34.5),
    (-33.328, 12, -33.328),
    (34.5, 12, 27.5),
    (33.328, 12, 33.328),
    (33.328, 12, -33.328),
    (-34.5, 7.5, -24.5),
    (-24.5, 7.5, -24.5),
    (-24.5, 7.5, -34.5),
    (-27.5, 12, -34.5),
    (-34.5, 7.5, 24.5),
    (-24.5, 7.5, 34.5),
    (-24.5, 7.5, 24.5),
    (-34.5, 12, 27.5),
    (34.5, 7.5, 24.5),
    (24.5, 7.5, 24.5),
    (24.5, 7.5, 34.5),
    (27.5, 12, 34.5),
    (34.5, 7.5, -24.5),
    (24.5, 7.5, -34.5),
    (24.5, 7.5, -24.5),
    (34.5, 12, -27.5),
]))
fillet2.setExpression("Radius", "Params.fillet2_radius")

doc.recompute()
